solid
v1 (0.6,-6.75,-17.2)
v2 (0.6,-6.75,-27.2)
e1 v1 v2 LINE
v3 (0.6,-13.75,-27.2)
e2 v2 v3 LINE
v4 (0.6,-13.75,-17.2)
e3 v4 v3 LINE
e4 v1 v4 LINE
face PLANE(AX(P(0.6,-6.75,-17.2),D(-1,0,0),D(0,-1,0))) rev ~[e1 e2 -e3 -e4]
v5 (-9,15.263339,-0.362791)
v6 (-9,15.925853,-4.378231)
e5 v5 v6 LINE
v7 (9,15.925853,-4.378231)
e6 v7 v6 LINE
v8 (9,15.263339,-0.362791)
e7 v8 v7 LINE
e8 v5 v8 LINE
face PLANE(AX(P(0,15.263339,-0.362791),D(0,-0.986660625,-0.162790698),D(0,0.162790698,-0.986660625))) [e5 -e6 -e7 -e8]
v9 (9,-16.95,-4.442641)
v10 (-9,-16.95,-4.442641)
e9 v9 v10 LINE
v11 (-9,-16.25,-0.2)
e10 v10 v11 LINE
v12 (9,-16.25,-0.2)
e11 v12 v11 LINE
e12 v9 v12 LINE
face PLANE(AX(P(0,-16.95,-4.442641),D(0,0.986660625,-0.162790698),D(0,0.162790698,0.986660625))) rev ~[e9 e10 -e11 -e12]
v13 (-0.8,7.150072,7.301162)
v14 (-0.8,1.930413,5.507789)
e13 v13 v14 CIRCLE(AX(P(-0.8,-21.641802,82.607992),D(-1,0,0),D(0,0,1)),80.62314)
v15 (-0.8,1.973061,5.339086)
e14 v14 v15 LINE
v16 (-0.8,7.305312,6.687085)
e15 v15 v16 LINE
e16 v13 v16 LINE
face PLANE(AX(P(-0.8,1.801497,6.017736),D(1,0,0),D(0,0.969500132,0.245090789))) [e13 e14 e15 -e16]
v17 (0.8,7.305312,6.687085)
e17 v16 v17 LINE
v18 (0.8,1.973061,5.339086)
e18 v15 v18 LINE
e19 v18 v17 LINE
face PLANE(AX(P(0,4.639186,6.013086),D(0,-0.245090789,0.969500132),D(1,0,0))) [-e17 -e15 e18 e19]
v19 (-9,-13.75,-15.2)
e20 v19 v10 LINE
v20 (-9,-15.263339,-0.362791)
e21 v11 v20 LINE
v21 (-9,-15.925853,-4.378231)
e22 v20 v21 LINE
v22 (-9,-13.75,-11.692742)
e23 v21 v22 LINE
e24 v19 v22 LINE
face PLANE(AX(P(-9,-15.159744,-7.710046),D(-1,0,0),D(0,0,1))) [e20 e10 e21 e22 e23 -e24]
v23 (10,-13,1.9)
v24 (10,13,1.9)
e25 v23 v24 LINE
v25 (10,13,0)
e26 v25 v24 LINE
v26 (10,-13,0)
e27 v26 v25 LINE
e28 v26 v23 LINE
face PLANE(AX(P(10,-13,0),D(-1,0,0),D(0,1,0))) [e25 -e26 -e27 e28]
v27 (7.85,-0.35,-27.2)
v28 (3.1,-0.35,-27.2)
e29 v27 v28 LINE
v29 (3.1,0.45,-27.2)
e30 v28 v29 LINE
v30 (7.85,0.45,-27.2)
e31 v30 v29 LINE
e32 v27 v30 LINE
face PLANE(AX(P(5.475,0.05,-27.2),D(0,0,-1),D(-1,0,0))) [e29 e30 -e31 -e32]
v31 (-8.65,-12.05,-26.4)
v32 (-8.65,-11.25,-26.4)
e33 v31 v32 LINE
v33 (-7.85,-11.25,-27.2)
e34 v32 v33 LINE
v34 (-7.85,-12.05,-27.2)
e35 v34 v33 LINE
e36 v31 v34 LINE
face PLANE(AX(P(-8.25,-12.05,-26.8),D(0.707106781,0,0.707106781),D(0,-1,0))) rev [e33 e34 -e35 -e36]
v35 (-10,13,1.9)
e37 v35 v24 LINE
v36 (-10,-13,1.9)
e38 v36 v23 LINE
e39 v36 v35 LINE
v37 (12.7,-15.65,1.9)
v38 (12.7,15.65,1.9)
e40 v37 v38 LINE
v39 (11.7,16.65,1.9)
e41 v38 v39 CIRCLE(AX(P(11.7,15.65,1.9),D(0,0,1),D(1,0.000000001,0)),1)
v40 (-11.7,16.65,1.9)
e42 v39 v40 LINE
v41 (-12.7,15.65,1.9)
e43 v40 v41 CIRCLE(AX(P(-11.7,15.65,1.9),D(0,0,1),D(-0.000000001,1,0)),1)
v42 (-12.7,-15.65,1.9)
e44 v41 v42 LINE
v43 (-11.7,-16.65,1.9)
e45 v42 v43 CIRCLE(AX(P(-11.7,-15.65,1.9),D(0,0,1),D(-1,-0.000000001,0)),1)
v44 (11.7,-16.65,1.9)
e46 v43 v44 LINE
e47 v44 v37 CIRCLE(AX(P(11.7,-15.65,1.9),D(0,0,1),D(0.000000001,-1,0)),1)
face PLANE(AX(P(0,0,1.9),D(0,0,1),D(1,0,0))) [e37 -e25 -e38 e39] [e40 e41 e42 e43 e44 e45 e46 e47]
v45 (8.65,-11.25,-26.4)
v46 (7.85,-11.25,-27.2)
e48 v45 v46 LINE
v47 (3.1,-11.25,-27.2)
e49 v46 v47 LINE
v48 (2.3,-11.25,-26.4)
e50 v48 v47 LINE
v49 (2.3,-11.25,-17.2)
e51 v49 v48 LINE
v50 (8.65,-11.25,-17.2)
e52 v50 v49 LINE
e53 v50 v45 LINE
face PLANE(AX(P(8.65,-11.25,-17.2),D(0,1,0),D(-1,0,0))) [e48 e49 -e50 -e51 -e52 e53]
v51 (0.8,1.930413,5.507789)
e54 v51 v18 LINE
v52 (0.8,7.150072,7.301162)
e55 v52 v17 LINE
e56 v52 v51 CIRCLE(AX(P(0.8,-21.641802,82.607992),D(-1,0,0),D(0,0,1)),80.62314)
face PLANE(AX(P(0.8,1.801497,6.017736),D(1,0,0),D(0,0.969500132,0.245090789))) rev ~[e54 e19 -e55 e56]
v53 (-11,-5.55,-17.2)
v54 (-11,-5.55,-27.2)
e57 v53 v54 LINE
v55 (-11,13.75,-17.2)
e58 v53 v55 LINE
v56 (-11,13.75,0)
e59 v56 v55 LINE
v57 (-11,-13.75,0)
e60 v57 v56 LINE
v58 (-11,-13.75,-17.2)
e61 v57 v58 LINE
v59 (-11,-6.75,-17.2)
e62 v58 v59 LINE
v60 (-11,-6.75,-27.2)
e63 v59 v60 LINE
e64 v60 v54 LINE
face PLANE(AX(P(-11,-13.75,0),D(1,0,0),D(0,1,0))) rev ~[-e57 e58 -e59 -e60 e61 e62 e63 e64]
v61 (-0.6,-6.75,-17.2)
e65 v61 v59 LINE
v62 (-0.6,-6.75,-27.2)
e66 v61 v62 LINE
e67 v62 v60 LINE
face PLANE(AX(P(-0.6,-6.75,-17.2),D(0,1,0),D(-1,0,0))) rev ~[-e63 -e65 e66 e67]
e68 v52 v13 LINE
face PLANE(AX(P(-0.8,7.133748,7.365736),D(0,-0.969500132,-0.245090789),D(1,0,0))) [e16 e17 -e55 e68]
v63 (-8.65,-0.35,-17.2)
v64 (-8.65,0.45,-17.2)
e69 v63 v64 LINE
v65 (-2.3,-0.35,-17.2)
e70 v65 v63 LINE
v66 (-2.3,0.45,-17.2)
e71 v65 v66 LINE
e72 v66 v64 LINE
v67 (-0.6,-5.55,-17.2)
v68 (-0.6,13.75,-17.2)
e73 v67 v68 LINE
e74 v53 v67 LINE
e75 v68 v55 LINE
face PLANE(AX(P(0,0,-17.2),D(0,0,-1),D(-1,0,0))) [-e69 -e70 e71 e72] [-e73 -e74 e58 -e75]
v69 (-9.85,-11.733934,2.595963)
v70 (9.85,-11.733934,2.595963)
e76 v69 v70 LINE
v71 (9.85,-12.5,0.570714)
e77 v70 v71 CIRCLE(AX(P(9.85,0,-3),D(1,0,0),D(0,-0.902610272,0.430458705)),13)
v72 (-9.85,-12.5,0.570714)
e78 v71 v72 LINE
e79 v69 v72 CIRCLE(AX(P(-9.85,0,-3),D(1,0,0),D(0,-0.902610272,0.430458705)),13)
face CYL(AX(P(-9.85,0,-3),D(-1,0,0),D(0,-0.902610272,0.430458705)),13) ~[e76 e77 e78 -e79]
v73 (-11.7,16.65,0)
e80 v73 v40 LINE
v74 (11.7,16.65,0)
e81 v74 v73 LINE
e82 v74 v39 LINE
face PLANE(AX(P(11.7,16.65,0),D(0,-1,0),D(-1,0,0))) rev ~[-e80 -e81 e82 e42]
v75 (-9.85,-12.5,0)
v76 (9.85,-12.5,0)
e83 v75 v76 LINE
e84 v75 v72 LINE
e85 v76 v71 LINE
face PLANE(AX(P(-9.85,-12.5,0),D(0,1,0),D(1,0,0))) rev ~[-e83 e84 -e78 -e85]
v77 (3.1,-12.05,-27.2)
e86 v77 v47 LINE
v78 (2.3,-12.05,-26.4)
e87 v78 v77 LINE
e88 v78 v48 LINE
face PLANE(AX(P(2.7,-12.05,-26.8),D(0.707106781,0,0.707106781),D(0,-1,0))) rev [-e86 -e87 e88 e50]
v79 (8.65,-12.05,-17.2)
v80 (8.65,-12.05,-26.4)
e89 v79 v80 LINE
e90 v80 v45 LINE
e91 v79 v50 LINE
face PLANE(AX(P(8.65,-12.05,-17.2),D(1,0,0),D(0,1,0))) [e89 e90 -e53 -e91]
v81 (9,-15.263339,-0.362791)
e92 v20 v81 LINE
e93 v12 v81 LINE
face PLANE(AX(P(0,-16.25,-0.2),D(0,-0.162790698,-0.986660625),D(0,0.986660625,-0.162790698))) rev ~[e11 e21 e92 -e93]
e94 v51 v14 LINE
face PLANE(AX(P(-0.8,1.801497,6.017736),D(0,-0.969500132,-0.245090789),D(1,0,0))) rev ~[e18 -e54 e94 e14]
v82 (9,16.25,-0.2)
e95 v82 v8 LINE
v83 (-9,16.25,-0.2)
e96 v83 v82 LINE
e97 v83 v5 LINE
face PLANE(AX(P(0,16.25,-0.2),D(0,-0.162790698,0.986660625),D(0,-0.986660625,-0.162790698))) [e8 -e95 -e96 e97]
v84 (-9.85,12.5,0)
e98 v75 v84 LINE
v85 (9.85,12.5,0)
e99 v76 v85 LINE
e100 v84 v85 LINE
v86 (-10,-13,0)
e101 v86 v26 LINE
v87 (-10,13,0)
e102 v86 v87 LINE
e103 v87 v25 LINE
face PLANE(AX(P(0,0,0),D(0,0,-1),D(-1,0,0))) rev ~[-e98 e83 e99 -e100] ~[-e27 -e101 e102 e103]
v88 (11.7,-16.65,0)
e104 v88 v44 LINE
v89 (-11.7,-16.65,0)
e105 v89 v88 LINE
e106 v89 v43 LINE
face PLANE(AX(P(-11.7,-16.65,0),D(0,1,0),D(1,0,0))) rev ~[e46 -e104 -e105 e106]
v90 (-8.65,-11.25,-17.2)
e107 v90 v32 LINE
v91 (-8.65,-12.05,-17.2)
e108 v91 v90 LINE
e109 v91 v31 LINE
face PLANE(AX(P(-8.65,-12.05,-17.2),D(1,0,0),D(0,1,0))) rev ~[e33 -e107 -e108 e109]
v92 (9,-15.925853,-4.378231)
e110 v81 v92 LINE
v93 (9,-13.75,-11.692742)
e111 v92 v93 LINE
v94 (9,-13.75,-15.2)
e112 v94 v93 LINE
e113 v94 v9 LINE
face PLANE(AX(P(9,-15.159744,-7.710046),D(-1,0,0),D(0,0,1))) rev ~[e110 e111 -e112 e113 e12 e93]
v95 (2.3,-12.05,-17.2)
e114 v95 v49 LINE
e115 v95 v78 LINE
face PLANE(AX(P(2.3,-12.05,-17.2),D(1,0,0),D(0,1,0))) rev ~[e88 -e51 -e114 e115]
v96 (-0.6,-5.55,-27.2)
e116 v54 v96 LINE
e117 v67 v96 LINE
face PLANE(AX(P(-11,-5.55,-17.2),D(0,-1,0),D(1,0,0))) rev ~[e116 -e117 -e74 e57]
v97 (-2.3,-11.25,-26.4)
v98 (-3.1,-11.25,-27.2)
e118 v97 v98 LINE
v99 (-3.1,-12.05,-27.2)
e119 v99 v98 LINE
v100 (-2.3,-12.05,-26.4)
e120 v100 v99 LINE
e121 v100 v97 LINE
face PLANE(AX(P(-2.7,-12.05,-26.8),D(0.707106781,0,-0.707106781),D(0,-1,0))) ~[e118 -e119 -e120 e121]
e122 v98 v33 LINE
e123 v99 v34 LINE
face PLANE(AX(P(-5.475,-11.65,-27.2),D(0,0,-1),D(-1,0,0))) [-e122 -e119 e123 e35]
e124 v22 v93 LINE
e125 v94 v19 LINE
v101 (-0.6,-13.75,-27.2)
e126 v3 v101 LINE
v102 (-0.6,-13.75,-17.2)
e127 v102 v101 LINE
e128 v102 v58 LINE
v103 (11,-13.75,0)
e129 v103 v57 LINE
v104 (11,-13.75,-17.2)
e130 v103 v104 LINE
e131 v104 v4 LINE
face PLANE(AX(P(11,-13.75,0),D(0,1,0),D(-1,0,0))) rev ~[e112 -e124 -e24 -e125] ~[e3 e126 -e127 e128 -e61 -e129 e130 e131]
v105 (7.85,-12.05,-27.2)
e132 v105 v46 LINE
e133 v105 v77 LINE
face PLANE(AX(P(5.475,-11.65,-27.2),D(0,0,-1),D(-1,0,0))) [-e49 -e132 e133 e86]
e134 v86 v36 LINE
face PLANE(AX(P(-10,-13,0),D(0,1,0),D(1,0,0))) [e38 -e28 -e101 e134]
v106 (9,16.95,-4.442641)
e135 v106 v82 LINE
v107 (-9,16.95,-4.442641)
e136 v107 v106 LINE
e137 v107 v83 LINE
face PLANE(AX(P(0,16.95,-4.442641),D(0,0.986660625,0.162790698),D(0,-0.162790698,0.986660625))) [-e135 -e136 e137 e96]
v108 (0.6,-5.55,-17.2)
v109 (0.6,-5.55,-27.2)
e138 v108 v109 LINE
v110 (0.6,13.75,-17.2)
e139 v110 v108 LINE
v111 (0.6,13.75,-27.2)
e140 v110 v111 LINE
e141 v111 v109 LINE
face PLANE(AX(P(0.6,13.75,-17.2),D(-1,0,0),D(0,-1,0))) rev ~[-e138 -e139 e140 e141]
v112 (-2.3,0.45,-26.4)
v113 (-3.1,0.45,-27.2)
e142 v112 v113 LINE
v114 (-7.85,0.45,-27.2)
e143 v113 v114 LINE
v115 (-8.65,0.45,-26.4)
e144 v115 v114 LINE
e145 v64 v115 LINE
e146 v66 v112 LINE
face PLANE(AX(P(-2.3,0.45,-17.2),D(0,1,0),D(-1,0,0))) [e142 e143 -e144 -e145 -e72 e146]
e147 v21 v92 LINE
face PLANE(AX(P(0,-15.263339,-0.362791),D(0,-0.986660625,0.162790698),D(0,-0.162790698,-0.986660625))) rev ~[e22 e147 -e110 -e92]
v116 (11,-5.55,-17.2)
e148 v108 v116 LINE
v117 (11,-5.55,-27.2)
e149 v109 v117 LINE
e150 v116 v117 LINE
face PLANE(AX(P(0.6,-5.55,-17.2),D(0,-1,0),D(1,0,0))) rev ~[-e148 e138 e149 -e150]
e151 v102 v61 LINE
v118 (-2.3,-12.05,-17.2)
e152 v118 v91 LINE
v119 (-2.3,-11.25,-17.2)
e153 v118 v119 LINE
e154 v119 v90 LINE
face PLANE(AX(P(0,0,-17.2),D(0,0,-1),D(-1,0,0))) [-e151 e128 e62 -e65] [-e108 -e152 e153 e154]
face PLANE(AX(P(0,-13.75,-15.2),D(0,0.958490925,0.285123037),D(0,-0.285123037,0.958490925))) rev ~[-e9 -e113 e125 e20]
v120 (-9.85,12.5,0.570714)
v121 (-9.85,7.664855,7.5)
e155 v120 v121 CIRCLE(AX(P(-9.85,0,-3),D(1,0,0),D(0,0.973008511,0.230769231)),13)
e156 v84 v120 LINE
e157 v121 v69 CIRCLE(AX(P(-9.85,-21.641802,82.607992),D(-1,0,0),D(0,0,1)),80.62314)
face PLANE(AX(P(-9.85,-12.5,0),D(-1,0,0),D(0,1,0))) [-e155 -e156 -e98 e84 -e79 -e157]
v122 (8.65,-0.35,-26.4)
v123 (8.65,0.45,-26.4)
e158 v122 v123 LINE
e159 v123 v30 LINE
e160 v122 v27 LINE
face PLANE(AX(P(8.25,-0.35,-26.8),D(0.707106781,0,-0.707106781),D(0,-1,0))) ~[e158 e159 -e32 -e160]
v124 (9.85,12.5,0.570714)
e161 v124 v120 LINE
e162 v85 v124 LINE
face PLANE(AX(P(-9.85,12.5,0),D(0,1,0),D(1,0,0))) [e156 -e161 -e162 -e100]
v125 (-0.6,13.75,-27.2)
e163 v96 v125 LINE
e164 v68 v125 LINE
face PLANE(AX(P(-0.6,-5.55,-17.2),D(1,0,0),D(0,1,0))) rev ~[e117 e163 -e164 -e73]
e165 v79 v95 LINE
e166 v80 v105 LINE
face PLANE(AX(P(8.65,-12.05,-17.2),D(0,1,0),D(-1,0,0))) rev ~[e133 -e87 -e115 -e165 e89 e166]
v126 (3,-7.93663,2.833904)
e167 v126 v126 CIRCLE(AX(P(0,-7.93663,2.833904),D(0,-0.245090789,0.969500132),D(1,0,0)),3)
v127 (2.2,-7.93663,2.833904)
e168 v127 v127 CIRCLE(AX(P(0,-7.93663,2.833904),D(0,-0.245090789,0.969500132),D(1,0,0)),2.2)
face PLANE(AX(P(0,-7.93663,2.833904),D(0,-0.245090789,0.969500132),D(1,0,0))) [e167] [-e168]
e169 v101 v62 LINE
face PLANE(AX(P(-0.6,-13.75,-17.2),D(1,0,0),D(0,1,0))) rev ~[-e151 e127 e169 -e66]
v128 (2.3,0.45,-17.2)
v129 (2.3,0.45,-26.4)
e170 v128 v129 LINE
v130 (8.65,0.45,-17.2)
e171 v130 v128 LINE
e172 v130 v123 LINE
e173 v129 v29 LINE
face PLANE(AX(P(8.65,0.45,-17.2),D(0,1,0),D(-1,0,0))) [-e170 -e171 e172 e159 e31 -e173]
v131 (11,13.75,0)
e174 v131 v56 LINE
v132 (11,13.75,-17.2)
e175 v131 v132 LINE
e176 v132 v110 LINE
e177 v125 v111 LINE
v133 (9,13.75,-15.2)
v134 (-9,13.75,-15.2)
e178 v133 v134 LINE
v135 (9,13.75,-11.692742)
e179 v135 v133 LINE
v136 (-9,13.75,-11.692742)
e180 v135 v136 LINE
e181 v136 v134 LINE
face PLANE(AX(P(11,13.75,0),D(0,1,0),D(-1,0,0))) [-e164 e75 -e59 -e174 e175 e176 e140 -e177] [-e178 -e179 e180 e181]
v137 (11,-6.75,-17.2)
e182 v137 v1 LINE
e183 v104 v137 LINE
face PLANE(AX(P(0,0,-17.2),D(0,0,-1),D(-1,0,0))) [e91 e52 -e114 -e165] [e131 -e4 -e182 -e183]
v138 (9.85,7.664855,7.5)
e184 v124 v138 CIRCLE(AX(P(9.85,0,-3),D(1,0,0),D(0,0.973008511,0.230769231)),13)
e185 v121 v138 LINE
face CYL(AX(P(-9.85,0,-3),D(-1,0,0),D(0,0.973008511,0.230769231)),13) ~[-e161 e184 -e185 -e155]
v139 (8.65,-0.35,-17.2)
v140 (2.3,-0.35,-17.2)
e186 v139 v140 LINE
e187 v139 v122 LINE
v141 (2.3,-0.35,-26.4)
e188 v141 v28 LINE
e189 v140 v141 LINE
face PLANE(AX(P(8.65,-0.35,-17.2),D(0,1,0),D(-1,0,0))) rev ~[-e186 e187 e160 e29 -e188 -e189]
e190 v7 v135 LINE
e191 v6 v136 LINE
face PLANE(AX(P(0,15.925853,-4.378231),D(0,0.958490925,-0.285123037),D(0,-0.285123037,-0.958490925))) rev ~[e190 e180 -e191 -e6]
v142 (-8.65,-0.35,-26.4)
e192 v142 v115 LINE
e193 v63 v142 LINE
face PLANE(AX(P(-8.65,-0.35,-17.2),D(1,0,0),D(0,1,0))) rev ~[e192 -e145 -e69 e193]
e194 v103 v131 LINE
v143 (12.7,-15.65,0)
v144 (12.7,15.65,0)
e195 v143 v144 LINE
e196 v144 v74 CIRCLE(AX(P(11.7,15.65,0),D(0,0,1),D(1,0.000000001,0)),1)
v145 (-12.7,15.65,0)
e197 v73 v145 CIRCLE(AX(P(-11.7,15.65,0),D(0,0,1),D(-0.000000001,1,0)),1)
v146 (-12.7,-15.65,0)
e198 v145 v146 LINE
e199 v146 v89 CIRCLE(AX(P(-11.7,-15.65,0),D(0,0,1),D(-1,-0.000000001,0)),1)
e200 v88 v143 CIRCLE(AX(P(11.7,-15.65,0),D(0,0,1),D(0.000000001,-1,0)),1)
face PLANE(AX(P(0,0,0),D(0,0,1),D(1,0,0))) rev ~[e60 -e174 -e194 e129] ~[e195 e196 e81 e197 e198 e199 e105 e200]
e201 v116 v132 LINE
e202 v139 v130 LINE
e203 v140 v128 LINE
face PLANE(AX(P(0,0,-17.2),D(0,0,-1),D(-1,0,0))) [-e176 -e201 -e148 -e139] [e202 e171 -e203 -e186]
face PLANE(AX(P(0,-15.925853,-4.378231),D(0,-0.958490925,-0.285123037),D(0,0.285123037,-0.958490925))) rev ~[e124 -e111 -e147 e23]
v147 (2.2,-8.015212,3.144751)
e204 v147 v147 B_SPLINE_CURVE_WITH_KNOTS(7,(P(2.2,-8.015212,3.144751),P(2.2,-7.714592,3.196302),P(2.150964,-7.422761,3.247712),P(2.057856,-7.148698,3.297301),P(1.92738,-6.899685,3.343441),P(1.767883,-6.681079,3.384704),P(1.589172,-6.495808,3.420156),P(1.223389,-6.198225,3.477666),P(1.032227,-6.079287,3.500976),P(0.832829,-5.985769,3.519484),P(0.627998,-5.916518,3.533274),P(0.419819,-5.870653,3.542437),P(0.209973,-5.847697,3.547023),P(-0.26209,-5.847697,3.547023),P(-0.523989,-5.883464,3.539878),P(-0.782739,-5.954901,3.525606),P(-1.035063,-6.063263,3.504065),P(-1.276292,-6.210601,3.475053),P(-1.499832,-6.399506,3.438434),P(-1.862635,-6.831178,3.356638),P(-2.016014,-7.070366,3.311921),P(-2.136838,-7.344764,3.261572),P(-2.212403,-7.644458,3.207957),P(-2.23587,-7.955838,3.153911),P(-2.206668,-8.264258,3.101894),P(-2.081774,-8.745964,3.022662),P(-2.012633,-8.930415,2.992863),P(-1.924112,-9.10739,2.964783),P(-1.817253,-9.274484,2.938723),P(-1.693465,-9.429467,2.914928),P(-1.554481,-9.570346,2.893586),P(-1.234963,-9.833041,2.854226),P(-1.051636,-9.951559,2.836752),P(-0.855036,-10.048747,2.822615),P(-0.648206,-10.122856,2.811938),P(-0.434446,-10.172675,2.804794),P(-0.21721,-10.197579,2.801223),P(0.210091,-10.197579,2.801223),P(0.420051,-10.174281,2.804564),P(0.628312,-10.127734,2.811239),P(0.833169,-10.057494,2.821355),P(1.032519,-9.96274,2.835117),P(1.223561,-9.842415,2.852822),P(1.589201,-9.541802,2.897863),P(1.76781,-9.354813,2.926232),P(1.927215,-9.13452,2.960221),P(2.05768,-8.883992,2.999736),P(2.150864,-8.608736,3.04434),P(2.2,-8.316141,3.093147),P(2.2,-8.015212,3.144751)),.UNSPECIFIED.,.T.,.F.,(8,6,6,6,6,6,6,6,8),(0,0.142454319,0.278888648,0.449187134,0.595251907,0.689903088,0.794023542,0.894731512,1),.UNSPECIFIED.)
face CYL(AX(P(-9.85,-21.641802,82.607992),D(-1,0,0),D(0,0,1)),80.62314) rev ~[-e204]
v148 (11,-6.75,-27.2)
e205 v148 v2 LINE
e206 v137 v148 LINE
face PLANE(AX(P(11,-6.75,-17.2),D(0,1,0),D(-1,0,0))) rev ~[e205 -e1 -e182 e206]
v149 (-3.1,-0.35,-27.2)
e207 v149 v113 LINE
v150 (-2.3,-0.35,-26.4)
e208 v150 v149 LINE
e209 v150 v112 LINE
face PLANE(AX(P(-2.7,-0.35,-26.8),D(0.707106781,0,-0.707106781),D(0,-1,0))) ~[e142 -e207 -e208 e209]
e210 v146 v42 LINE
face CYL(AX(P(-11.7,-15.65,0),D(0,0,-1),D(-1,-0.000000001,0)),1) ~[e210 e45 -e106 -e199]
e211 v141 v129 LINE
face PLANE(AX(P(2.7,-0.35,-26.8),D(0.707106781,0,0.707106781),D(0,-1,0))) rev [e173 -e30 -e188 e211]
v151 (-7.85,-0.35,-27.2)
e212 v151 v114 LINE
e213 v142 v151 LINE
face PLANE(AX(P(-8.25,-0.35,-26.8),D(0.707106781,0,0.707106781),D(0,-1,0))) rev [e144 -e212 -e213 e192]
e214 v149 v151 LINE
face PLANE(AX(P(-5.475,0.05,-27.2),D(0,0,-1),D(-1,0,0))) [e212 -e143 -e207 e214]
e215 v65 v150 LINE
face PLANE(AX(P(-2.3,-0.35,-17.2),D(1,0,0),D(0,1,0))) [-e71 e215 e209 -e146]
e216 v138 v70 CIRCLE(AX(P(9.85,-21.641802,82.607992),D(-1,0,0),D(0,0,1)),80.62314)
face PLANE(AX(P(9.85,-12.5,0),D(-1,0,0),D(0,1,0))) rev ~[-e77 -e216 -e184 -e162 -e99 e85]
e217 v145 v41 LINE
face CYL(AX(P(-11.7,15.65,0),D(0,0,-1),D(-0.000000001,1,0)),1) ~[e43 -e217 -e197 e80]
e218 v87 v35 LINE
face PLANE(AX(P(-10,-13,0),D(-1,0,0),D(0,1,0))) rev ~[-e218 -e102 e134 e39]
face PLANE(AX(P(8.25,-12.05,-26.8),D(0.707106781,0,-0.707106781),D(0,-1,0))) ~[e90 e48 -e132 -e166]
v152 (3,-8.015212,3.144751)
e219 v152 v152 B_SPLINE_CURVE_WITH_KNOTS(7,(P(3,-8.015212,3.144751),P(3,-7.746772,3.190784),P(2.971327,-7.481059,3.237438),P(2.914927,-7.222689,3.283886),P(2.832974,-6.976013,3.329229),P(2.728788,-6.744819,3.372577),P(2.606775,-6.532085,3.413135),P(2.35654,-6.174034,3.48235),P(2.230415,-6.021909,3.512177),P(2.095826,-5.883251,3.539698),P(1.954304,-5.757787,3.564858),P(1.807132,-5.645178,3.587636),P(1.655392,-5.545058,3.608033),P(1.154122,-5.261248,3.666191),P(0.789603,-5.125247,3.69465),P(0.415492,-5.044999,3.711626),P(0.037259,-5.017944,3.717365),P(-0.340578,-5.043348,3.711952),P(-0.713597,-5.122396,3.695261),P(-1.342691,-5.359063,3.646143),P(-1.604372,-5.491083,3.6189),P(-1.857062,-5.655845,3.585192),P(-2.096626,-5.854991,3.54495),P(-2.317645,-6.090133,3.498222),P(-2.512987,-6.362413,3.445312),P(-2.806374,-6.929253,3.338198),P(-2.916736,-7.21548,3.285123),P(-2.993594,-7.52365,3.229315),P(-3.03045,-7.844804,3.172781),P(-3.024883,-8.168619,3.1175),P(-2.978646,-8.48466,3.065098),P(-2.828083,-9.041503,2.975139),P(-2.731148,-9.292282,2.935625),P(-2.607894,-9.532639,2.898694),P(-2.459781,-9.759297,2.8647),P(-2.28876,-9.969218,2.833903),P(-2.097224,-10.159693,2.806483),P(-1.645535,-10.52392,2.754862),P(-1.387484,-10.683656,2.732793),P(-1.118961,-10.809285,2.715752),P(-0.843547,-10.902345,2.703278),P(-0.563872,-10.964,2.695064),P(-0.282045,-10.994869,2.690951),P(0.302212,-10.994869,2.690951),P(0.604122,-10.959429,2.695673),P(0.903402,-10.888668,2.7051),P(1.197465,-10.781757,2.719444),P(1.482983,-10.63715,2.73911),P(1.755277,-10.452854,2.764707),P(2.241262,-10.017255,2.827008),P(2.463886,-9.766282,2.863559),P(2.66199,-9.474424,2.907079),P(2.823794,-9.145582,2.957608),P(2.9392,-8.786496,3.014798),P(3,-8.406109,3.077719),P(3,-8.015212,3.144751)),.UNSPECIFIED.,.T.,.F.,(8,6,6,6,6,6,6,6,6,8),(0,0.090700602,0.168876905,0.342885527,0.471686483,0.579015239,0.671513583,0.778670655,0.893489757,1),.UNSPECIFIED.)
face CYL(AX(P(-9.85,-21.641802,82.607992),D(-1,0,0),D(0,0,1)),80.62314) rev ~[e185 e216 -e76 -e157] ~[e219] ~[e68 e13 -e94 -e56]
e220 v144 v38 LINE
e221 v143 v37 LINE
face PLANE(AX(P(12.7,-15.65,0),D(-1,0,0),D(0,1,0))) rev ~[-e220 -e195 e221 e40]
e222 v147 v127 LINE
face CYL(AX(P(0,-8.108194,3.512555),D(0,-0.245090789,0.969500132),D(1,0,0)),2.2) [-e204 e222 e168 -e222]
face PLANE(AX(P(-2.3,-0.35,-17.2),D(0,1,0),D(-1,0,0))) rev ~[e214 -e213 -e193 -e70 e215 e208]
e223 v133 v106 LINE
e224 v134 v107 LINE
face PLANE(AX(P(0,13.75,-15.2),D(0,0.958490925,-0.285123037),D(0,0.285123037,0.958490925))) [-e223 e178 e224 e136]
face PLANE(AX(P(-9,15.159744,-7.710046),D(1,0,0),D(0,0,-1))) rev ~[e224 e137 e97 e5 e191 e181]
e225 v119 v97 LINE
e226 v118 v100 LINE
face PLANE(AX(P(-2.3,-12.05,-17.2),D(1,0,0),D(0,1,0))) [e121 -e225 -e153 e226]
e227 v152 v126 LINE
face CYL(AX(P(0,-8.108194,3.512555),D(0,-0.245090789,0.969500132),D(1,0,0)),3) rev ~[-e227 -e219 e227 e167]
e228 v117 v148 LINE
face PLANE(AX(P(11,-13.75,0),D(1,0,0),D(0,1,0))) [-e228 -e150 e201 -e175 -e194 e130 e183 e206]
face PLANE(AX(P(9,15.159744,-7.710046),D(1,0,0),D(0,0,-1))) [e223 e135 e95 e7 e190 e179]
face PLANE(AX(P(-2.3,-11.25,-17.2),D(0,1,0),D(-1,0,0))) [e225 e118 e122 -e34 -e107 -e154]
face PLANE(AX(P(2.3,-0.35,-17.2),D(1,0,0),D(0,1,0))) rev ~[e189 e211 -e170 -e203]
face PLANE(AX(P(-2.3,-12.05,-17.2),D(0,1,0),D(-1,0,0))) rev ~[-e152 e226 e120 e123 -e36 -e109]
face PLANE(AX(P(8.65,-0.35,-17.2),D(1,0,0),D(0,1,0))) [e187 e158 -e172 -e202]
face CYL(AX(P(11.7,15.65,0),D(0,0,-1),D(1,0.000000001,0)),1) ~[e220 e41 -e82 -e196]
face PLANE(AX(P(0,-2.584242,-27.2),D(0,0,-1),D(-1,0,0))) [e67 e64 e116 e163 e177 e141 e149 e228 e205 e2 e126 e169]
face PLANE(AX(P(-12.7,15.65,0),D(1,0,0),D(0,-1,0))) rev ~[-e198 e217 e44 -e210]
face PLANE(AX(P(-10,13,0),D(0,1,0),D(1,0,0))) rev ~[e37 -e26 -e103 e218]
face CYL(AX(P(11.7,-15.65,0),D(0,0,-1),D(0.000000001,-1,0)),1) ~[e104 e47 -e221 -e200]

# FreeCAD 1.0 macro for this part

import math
import FreeCAD as App
import Part
import Sketcher
from FreeCAD import Vector


def edges_at(feature, points):
    """Names of the edges that pass closest to the given points."""
    edges = feature.Shape.Edges
    near = lambda p: min(range(len(edges)), key=lambda i: edges[i].distToShape(Part.Vertex(*p))[0])
    return sorted({f"Edge{near(p) + 1}" for p in points})

doc = App.newDocument("Part")
params = doc.addObject("Spreadsheet::Sheet", "Params")
for row, (alias, value) in enumerate([
    ("sketch1_radius", "1 mm"),
    ("sketch1_width", "20 mm"),
    ("sketch1_height", "26 mm"),
    ("sketch1_width2", "23.4 mm"),
    ("sketch1_height2", "31.3 mm"),
    ("pad1_length", "1.9 mm"),
    ("sketch2_width", "22 mm"),
    ("sketch2_height", "27.5 mm"),
    ("pad2_length", "17.2 mm"),
    ("sketch3_height", "25 mm"),
    ("sketch3_width", "19.7 mm"),
    ("pad3_length", "7.6 mm"),
    ("sketch4_radius", "13 mm"),
    ("sketch4_height", "10.2 mm"),
    ("pocket1_length", "19.7 mm"),
    ("sketch5_diameter", "6 mm"),
    ("sketch5_diameter2", "4.4 mm"),
    ("sketch5_width", "1.6 mm"),
    ("sketch5_height", "5.5 mm"),
    ("pocket2_length", "0.7 mm"),
    ("sketch7_height", "7 mm"),
    ("sketch7_width", "1.2 mm"),
    ("sketch7_width2", "10.4 mm"),
    ("sketch7_height2", "19.3 mm"),
    ("sketch7_height3", "0.8 mm"),
    ("pad4_length", "10 mm"),
    ("chamfer_size", "0.8 mm"),
    ("sketch8_length", "1 mm"),
    ("sketch8_length2", "4.3 mm"),
    ("pad5_length", "9 mm"),
    ("pad5_length2", "9 mm"),
], start=1):
    params.set(f"A{row}", alias)
    params.set(f"B{row}", "=" + value)
    params.setAlias(f"B{row}", alias)

body = doc.addObject("PartDesign::Body", "Body")

sketch1 = body.newObject("Sketcher::SketchObject", "Sketch")
sketch1.AttachmentSupport = (doc.getObject("XY_Plane"), [""])
sketch1.MapMode = "FlatFace"
sketch1.addGeometry(Part.LineSegment(Vector(-11.7, -16.6, 0), Vector(11.7, -16.6, 0)), False)
sketch1.addGeometry(Part.ArcOfCircle(Part.Circle(Vector(11.7, -15.6, 0), Vector(0, 0, 1), 1), math.radians(-90), math.radians(0)), False)
sketch1.addGeometry(Part.LineSegment(Vector(12.7, -15.7, 0), Vector(12.7, 15.7, 0)), False)
sketch1.addGeometry(Part.ArcOfCircle(Part.Circle(Vector(11.7, 15.6, 0), Vector(0, 0, 1), 1), math.radians(0), math.radians(90)), False)
sketch1.addGeometry(Part.LineSegment(Vector(11.7, 16.6, 0), Vector(-11.7, 16.6, 0)), False)
sketch1.addGeometry(Part.ArcOfCircle(Part.Circle(Vector(-11.7, 15.6, 0), Vector(0, 0, 1), 1), math.radians(90), math.radians(180)), False)
sketch1.addGeometry(Part.LineSegment(Vector(-12.7, 15.7, 0), Vector(-12.7, -15.7, 0)), False)
sketch1.addGeometry(Part.ArcOfCircle(Part.Circle(Vector(-11.7, -15.6, 0), Vector(0, 0, 1), 1), math.radians(-180), math.radians(-90)), False)
sketch1.addGeometry(Part.LineSegment(Vector(10, -13, 0), Vector(-10, -13, 0)), False)
sketch1.addGeometry(Part.LineSegment(Vector(-10, -13, 0), Vector(-10, 13, 0)), False)
sketch1.addGeometry(Part.LineSegment(Vector(-10, 13, 0), Vector(10, 13, 0)), False)
sketch1.addGeometry(Part.LineSegment(Vector(10, 13, 0), Vector(10, -13, 0)), False)
sketch1.addConstraint(Sketcher.Constraint("Tangent", 0, 2, 1, 1))
sketch1.addConstraint(Sketcher.Constraint("Tangent", 1, 2, 2, 1))
sketch1.addConstraint(Sketcher.Constraint("Tangent", 2, 2, 3, 1))
sketch1.addConstraint(Sketcher.Constraint("Tangent", 3, 2, 4, 1))
sketch1.addConstraint(Sketcher.Constraint("Tangent", 4, 2, 5, 1))
sketch1.addConstraint(Sketcher.Constraint("Tangent", 5, 2, 6, 1))
sketch1.addConstraint(Sketcher.Constraint("Tangent", 6, 2, 7, 1))
sketch1.addConstraint(Sketcher.Constraint("Tangent", 7, 2, 0, 1))
sketch1.addConstraint(Sketcher.Constraint("Coincident", 8, 2, 9, 1))
sketch1.addConstraint(Sketcher.Constraint("Coincident", 9, 2, 10, 1))
sketch1.addConstraint(Sketcher.Constraint("Coincident", 10, 2, 11, 1))
sketch1.addConstraint(Sketcher.Constraint("Coincident", 11, 2, 8, 1))
sketch1.addConstraint(Sketcher.Constraint("Horizontal", 0))
sketch1.addConstraint(Sketcher.Constraint("Vertical", 2))
sketch1.addConstraint(Sketcher.Constraint("Horizontal", 4))
sketch1.addConstraint(Sketcher.Constraint("Vertical", 6))
sketch1.addConstraint(Sketcher.Constraint("Horizontal", 8))
sketch1.addConstraint(Sketcher.Constraint("Vertical", 9))
sketch1.addConstraint(Sketcher.Constraint("Horizontal", 10))
sketch1.addConstraint(Sketcher.Constraint("Vertical", 11))
sketch1.addConstraint(Sketcher.Constraint("Equal", 1, 3))
sketch1.addConstraint(Sketcher.Constraint("Equal", 3, 5))
sketch1.addConstraint(Sketcher.Constraint("Equal", 5, 7))
sketch1.addConstraint(Sketcher.Constraint("Symmetric", 1, 3, 5, 3, -1, 1))
sketch1.addConstraint(Sketcher.Constraint("Symmetric", 8, 2, 10, 2, -1, 1))
sketch1.addConstraint(Sketcher.Constraint("Radius", 1, 1.0))
sketch1.addConstraint(Sketcher.Constraint("DistanceX", 8, 2, 8, 1, 20.0))
sketch1.addConstraint(Sketcher.Constraint("DistanceY", 9, 1, 9, 2, 26.0))
sketch1.addConstraint(Sketcher.Constraint("DistanceX", 0, 1, 0, 2, 23.4))
sketch1.addConstraint(Sketcher.Constraint("DistanceY", 2, 1, 2, 2, 31.3))
sketch1.setExpression("Constraints[25]", "Params.sketch1_radius")
sketch1.setExpression("Constraints[26]", "Params.sketch1_width")
sketch1.setExpression("Constraints[27]", "Params.sketch1_height")
sketch1.setExpression("Constraints[28]", "Params.sketch1_width2")
sketch1.setExpression("Constraints[29]", "Params.sketch1_height2")
pad1 = body.newObject("PartDesign::Pad", "Pad")
pad1.Profile = sketch1
pad1.setExpression("Length", "Params.pad1_length")

sketch2 = body.newObject("Sketcher::SketchObject", "Sketch001")
sketch2.AttachmentSupport = (doc.getObject("XY_Plane"), [""])
sketch2.MapMode = "FlatFace"
sketch2.addGeometry(Part.LineSegment(Vector(11, 14, 0), Vector(11, -14, 0)), False)
sketch2.addGeometry(Part.LineSegment(Vector(11, -14, 0), Vector(-11, -14, 0)), False)
sketch2.addGeometry(Part.LineSegment(Vector(-11, -14, 0), Vector(-11, 14, 0)), False)
sketch2.addGeometry(Part.LineSegment(Vector(-11, 14, 0), Vector(11, 14, 0)), False)
sketch2.addConstraint(Sketcher.Constraint("Coincident", 0, 2, 1, 1))
sketch2.addConstraint(Sketcher.Constraint("Coincident", 1, 2, 2, 1))
sketch2.addConstraint(Sketcher.Constraint("Coincident", 2, 2, 3, 1))
sketch2.addConstraint(Sketcher.Constraint("Coincident", 3, 2, 0, 1))
sketch2.addConstraint(Sketcher.Constraint("Vertical", 0))
sketch2.addConstraint(Sketcher.Constraint("Horizontal", 1))
sketch2.addConstraint(Sketcher.Constraint("Vertical", 2))
sketch2.addConstraint(Sketcher.Constraint("Horizontal", 3))
sketch2.addConstraint(Sketcher.Constraint("Symmetric", 0, 2, 2, 2, -1, 1))
sketch2.addConstraint(Sketcher.Constraint("DistanceX", 1, 2, 1, 1, 22.0))
sketch2.addConstraint(Sketcher.Constraint("DistanceY", 0, 2, 0, 1, 27.5))
sketch2.setExpression("Constraints[9]", "Params.sketch2_width")
sketch2.setExpression("Constraints[10]", "Params.sketch2_height")
pad2 = body.newObject("PartDesign::Pad", "Pad001")
pad2.Profile = sketch2
pad2.setExpression("Length", "Params.pad2_length")
pad2.Reversed = True

sketch3 = body.newObject("Sketcher::SketchObject", "Sketch002")
sketch3.AttachmentSupport = (doc.getObject("XY_Plane"), [""])
sketch3.MapMode = "FlatFace"
sketch3.addGeometry(Part.LineSegment(Vector(-10, 12, 0), Vector(-10, -12, 0)), False)
sketch3.addGeometry(Part.LineSegment(Vector(-10, -12, 0), Vector(10, -12, 0)), False)
sketch3.addGeometry(Part.LineSegment(Vector(10, -12, 0), Vector(10, 12, 0)), False)
sketch3.addGeometry(Part.LineSegment(Vector(10, 12, 0), Vector(-10, 12, 0)), False)
sketch3.addConstraint(Sketcher.Constraint("Coincident", 0, 2, 1, 1))
sketch3.addConstraint(Sketcher.Constraint("Coincident", 1, 2, 2, 1))
sketch3.addConstraint(Sketcher.Constraint("Coincident", 2, 2, 3, 1))
sketch3.addConstraint(Sketcher.Constraint("Coincident", 3, 2, 0, 1))
sketch3.addConstraint(Sketcher.Constraint("Vertical", 0))
sketch3.addConstraint(Sketcher.Constraint("Horizontal", 1))
sketch3.addConstraint(Sketcher.Constraint("Vertical", 2))
sketch3.addConstraint(Sketcher.Constraint("Horizontal", 3))
sketch3.addConstraint(Sketcher.Constraint("Symmetric", 0, 2, 2, 2, -1, 1))
sketch3.addConstraint(Sketcher.Constraint("DistanceY", 0, 2, 0, 1, 25.0))
sketch3.addConstraint(Sketcher.Constraint("DistanceX", 1, 1, 1, 2, 19.7))
sketch3.setExpression("Constraints[9]", "Params.sketch3_height")
sketch3.setExpression("Constraints[10]", "Params.sketch3_width")
pad3 = body.newObject("PartDesign::Pad", "Pad002")
pad3.Profile = sketch3
pad3.setExpression("Length", "Params.pad3_length")

sketch4 = body.newObject("Sketcher::SketchObject", "Sketch003")
sketch4.AttachmentSupport = (doc.getObject("YZ_Plane"), [""])
sketch4.MapMode = "FlatFace"
sketch4.AttachmentOffset = App.Placement(Vector(0, 0, -9.85), App.Rotation())
sketch4.addGeometry(Part.LineSegment(Vector(-12.6, 0, 0), Vector(-12.6, 10.2, 0)), False)
sketch4.addGeometry(Part.LineSegment(Vector(-12.6, 10.2, 0), Vector(12.6, 10.2, 0)), False)
sketch4.addGeometry(Part.LineSegment(Vector(12.6, 10.2, 0), Vector(12.6, 0, 0)), False)
sketch4.addGeometry(Part.ArcOfCircle(Part.Circle(Vector(0, -3, 0), Vector(0, 0, 1), 13), math.radians(13), math.radians(54)), False)
sketch4.addGeometry(Part.LineSegment(Vector(7.7, 7.5, 0), Vector(-11.7, 2.6, 0)), False)
sketch4.addGeometry(Part.ArcOfCircle(Part.Circle(Vector(0, -3, 0), Vector(0, 0, 1), 13), math.radians(154.5), math.radians(166.66)), False)
sketch4.addConstraint(Sketcher.Constraint("Coincident", 0, 2, 1, 1))
sketch4.addConstraint(Sketcher.Constraint("Coincident", 1, 2, 2, 1))
sketch4.addConstraint(Sketcher.Constraint("Coincident", 2, 2, 3, 1))
sketch4.addConstraint(Sketcher.Constraint("Coincident", 3, 2, 4, 1))
sketch4.addConstraint(Sketcher.Constraint("Coincident", 4, 2, 5, 1))
sketch4.addConstraint(Sketcher.Constraint("Coincident", 5, 2, 0, 1))
sketch4.addConstraint(Sketcher.Constraint("Vertical", 0))
sketch4.addConstraint(Sketcher.Constraint("Horizontal", 1))
sketch4.addConstraint(Sketcher.Constraint("Vertical", 2))
sketch4.addConstraint(Sketcher.Constraint("Coincident", 5, 3, 3, 3))
sketch4.addConstraint(Sketcher.Constraint("Equal", 3, 5))
sketch4.addConstraint(Sketcher.Constraint("Symmetric", 2, 2, 5, 2, -1, 1))
sketch4.addConstraint(Sketcher.Constraint("PointOnObject", 3, 3, -2))
sketch4.addConstraint(Sketcher.Constraint("Radius", 3, 13.0))
sketch4.addConstraint(Sketcher.Constraint("DistanceY", 0, 1, 0, 2, 10.2))
sketch4.addConstraint(Sketcher.Constraint("DistanceY", 3, 3, -1, 1, 3.0))
sketch4.addConstraint(Sketcher.Constraint("DistanceY", -1, 1, 3, 2, 7.5))
sketch4.addConstraint(Sketcher.Constraint("DistanceX", 4, 2, 3, 2, 19.398788))
sketch4.setExpression("Constraints[13]", "Params.sketch4_radius")
sketch4.setExpression("Constraints[14]", "Params.sketch4_height")
pocket1 = body.newObject("PartDesign::Pocket", "Pocket")
pocket1.Profile = sketch4
pocket1.setExpression("Length", "Params.pocket1_length")
pocket1.Reversed = True

sketch5 = body.newObject("Sketcher::SketchObject", "Sketch004")
sketch5.Placement = App.Placement(Vector(0, -1.321693, 5.22819), App.Rotation(Vector(1, 0, 0), Vector(0, 0.969500132, 0.245090789), Vector(0, -0.245090789, 0.969500132), "ZXY"))
sketch5.addGeometry(Part.Circle(Vector(0, -7, 0), Vector(0, 0, 1), 3), False)
sketch5.addGeometry(Part.Circle(Vector(0, -7, 0), Vector(0, 0, 1), 2.2), False)
sketch5.addGeometry(Part.LineSegment(Vector(-0.8, 8.7, 0), Vector(-0.8, 3.2, 0)), False)
sketch5.addGeometry(Part.LineSegment(Vector(-0.8, 3.2, 0), Vector(0.8, 3.2, 0)), False)
sketch5.addGeometry(Part.LineSegment(Vector(0.8, 3.2, 0), Vector(0.8, 8.7, 0)), False)
sketch5.addGeometry(Part.LineSegment(Vector(0.8, 8.7, 0), Vector(-0.8, 8.7, 0)), False)
sketch5.addConstraint(Sketcher.Constraint("Coincident", 2, 2, 3, 1))
sketch5.addConstraint(Sketcher.Constraint("Coincident", 3, 2, 4, 1))
sketch5.addConstraint(Sketcher.Constraint("Coincident", 4, 2, 5, 1))
sketch5.addConstraint(Sketcher.Constraint("Coincident", 5, 2, 2, 1))
sketch5.addConstraint(Sketcher.Constraint("Vertical", 2))
sketch5.addConstraint(Sketcher.Constraint("Horizontal", 3))
sketch5.addConstraint(Sketcher.Constraint("Vertical", 4))
sketch5.addConstraint(Sketcher.Constraint("Horizontal", 5))
sketch5.addConstraint(Sketcher.Constraint("Coincident", 1, 3, 0, 3))
sketch5.addConstraint(Sketcher.Constraint("PointOnObject", 0, 3, -2))
sketch5.addConstraint(Sketcher.Constraint("Diameter", 0, 6.0))
sketch5.addConstraint(Sketcher.Constraint("Diameter", 1, 4.4))
sketch5.addConstraint(Sketcher.Constraint("DistanceX", 3, 1, 3, 2, 1.6))
sketch5.addConstraint(Sketcher.Constraint("DistanceY", 2, 2, 2, 1, 5.5))
sketch5.addConstraint(Sketcher.Constraint("DistanceY", 0, 3, -1, 1, 7.0))
sketch5.addConstraint(Sketcher.Constraint("DistanceX", 2, 2, -1, 1, 0.8))
sketch5.addConstraint(Sketcher.Constraint("DistanceY", -1, 1, 2, 2, 3.221444))
sketch5.setExpression("Constraints[10]", "Params.sketch5_diameter")
sketch5.setExpression("Constraints[11]", "Params.sketch5_diameter2")
sketch5.setExpression("Constraints[12]", "Params.sketch5_width")
sketch5.setExpression("Constraints[13]", "Params.sketch5_height")
pocket2 = body.newObject("PartDesign::Pocket", "Pocket001")
pocket2.Profile = sketch5
pocket2.setExpression("Length", "Params.pocket2_length")

sketch6 = body.newObject("Sketcher::SketchObject", "Sketch005")
sketch6.AttachmentSupport = (doc.getObject("YZ_Plane"), [""])
sketch6.MapMode = "FlatFace"
sketch6.AttachmentOffset = App.Placement(Vector(0, 0, -9.85), App.Rotation())
sketch6.addGeometry(Part.Circle(Vector(-22, 83, 0), Vector(0, 0, 1), 81), False)
sketch6.addConstraint(Sketcher.Constraint("Diameter", 0, 161.246279))
sketch6.addConstraint(Sketcher.Constraint("DistanceX", 0, 3, -1, 1, 21.641802))
sketch6.addConstraint(Sketcher.Constraint("DistanceY", -1, 1, 0, 3, 82.607992))
pocket3 = body.newObject("PartDesign::Pocket", "Pocket002")
pocket3.Profile = sketch6
pocket3.Type = "ThroughAll"
pocket3.Reversed = True

sketch7 = body.newObject("Sketcher::SketchObject", "Sketch006")
sketch7.AttachmentSupport = (doc.getObject("XY_Plane"), [""])
sketch7.MapMode = "FlatFace"
sketch7.AttachmentOffset = App.Placement(Vector(0, 0, -17.2), App.Rotation())
sketch7.addGeometry(Part.LineSegment(Vector(0.6, -13.8, 0), Vector(-0.6, -13.8, 0)), False)
sketch7.addGeometry(Part.LineSegment(Vector(-0.6, -13.8, 0), Vector(-0.6, -6.8, 0)), False)
sketch7.addGeometry(Part.LineSegment(Vector(-0.6, -6.8, 0), Vector(-11, -6.8, 0)), False)
sketch7.addGeometry(Part.LineSegment(Vector(-11, -6.8, 0), Vector(-11, -5.5, 0)), False)
sketch7.addGeometry(Part.LineSegment(Vector(-11, -5.5, 0), Vector(-0.6, -5.5, 0)), False)
sketch7.addGeometry(Part.LineSegment(Vector(-0.6, -5.5, 0), Vector(-0.6, 13.8, 0)), False)
sketch7.addGeometry(Part.LineSegment(Vector(-0.6, 13.8, 0), Vector(0.6, 13.8, 0)), False)
sketch7.addGeometry(Part.LineSegment(Vector(0.6, 13.8, 0), Vector(0.6, -5.5, 0)), False)
sketch7.addGeometry(Part.LineSegment(Vector(0.6, -5.5, 0), Vector(11, -5.5, 0)), False)
sketch7.addGeometry(Part.LineSegment(Vector(11, -5.5, 0), Vector(11, -6.8, 0)), False)
sketch7.addGeometry(Part.LineSegment(Vector(11, -6.8, 0), Vector(0.6, -6.8, 0)), False)
sketch7.addGeometry(Part.LineSegment(Vector(0.6, -6.8, 0), Vector(0.6, -13.8, 0)), False)
sketch7.addGeometry(Part.LineSegment(Vector(8.7, 0.5, 0), Vector(8.7, -0.3, 0)), False)
sketch7.addGeometry(Part.LineSegment(Vector(8.7, -0.3, 0), Vector(2.3, -0.3, 0)), False)
sketch7.addGeometry(Part.LineSegment(Vector(2.3, -0.3, 0), Vector(2.3, 0.5, 0)), False)
sketch7.addGeometry(Part.LineSegment(Vector(2.3, 0.5, 0), Vector(8.7, 0.5, 0)), False)
sketch7.addGeometry(Part.LineSegment(Vector(-2.3, 0.5, 0), Vector(-2.3, -0.3, 0)), False)
sketch7.addGeometry(Part.LineSegment(Vector(-2.3, -0.3, 0), Vector(-8.7, -0.3, 0)), False)
sketch7.addGeometry(Part.LineSegment(Vector(-8.7, -0.3, 0), Vector(-8.7, 0.5, 0)), False)
sketch7.addGeometry(Part.LineSegment(Vector(-8.7, 0.5, 0), Vector(-2.3, 0.5, 0)), False)
sketch7.addGeometry(Part.LineSegment(Vector(8.7, -11.2, 0), Vector(8.7, -12.1, 0)), False)
sketch7.addGeometry(Part.LineSegment(Vector(8.7, -12.1, 0), Vector(2.3, -12.1, 0)), False)
sketch7.addGeometry(Part.LineSegment(Vector(2.3, -12.1, 0), Vector(2.3, -11.2, 0)), False)
sketch7.addGeometry(Part.LineSegment(Vector(2.3, -11.2, 0), Vector(8.7, -11.2, 0)), False)
sketch7.addGeometry(Part.LineSegment(Vector(-2.3, -11.2, 0), Vector(-2.3, -12.1, 0)), False)
sketch7.addGeometry(Part.LineSegment(Vector(-2.3, -12.1, 0), Vector(-8.7, -12.1, 0)), False)
sketch7.addGeometry(Part.LineSegment(Vector(-8.7, -12.1, 0), Vector(-8.7, -11.2, 0)), False)
sketch7.addGeometry(Part.LineSegment(Vector(-8.7, -11.2, 0), Vector(-2.3, -11.2, 0)), False)
sketch7.addConstraint(Sketcher.Constraint("Coincident", 0, 2, 1, 1))
sketch7.addConstraint(Sketcher.Constraint("Coincident", 1, 2, 2, 1))
sketch7.addConstraint(Sketcher.Constraint("Coincident", 2, 2, 3, 1))
sketch7.addConstraint(Sketcher.Constraint("Coincident", 3, 2, 4, 1))
sketch7.addConstraint(Sketcher.Constraint("Coincident", 4, 2, 5, 1))
sketch7.addConstraint(Sketcher.Constraint("Coincident", 5, 2, 6, 1))
sketch7.addConstraint(Sketcher.Constraint("Coincident", 6, 2, 7, 1))
sketch7.addConstraint(Sketcher.Constraint("Coincident", 7, 2, 8, 1))
sketch7.addConstraint(Sketcher.Constraint("Coincident", 8, 2, 9, 1))
sketch7.addConstraint(Sketcher.Constraint("Coincident", 9, 2, 10, 1))
sketch7.addConstraint(Sketcher.Constraint("Coincident", 10, 2, 11, 1))
sketch7.addConstraint(Sketcher.Constraint("Coincident", 11, 2, 0, 1))
sketch7.addConstraint(Sketcher.Constraint("Coincident", 12, 2, 13, 1))
sketch7.addConstraint(Sketcher.Constraint("Coincident", 13, 2, 14, 1))
sketch7.addConstraint(Sketcher.Constraint("Coincident", 14, 2, 15, 1))
sketch7.addConstraint(Sketcher.Constraint("Coincident", 15, 2, 12, 1))
sketch7.addConstraint(Sketcher.Constraint("Coincident", 16, 2, 17, 1))
sketch7.addConstraint(Sketcher.Constraint("Coincident", 17, 2, 18, 1))
sketch7.addConstraint(Sketcher.Constraint("Coincident", 18, 2, 19, 1))
sketch7.addConstraint(Sketcher.Constraint("Coincident", 19, 2, 16, 1))
sketch7.addConstraint(Sketcher.Constraint("Coincident", 20, 2, 21, 1))
sketch7.addConstraint(Sketcher.Constraint("Coincident", 21, 2, 22, 1))
sketch7.addConstraint(Sketcher.Constraint("Coincident", 22, 2, 23, 1))
sketch7.addConstraint(Sketcher.Constraint("Coincident", 23, 2, 20, 1))
sketch7.addConstraint(Sketcher.Constraint("Coincident", 24, 2, 25, 1))
sketch7.addConstraint(Sketcher.Constraint("Coincident", 25, 2, 26, 1))
sketch7.addConstraint(Sketcher.Constraint("Coincident", 26, 2, 27, 1))
sketch7.addConstraint(Sketcher.Constraint("Coincident", 27, 2, 24, 1))
sketch7.addConstraint(Sketcher.Constraint("Horizontal", 0))
sketch7.addConstraint(Sketcher.Constraint("Vertical", 1))
sketch7.addConstraint(Sketcher.Constraint("Horizontal", 2))
sketch7.addConstraint(Sketcher.Constraint("Vertical", 3))
sketch7.addConstraint(Sketcher.Constraint("Horizontal", 4))
sketch7.addConstraint(Sketcher.Constraint("Vertical", 5))
sketch7.addConstraint(Sketcher.Constraint("Horizontal", 6))
sketch7.addConstraint(Sketcher.Constraint("Vertical", 7))
sketch7.addConstraint(Sketcher.Constraint("Horizontal", 8))
sketch7.addConstraint(Sketcher.Constraint("Vertical", 9))
sketch7.addConstraint(Sketcher.Constraint("Horizontal", 10))
sketch7.addConstraint(Sketcher.Constraint("Vertical", 11))
sketch7.addConstraint(Sketcher.Constraint("Vertical", 12))
sketch7.addConstraint(Sketcher.Constraint("Horizontal", 13))
sketch7.addConstraint(Sketcher.Constraint("Vertical", 14))
sketch7.addConstraint(Sketcher.Constraint("Horizontal", 15))
sketch7.addConstraint(Sketcher.Constraint("Vertical", 16))
sketch7.addConstraint(Sketcher.Constraint("Horizontal", 17))
sketch7.addConstraint(Sketcher.Constraint("Vertical", 18))
sketch7.addConstraint(Sketcher.Constraint("Horizontal", 19))
sketch7.addConstraint(Sketcher.Constraint("Vertical", 20))
sketch7.addConstraint(Sketcher.Constraint("Horizontal", 21))
sketch7.addConstraint(Sketcher.Constraint("Vertical", 22))
sketch7.addConstraint(Sketcher.Constraint("Horizontal", 23))
sketch7.addConstraint(Sketcher.Constraint("Vertical", 24))
sketch7.addConstraint(Sketcher.Constraint("Horizontal", 25))
sketch7.addConstraint(Sketcher.Constraint("Vertical", 26))
sketch7.addConstraint(Sketcher.Constraint("Horizontal", 27))
sketch7.addConstraint(Sketcher.Constraint("Symmetric", 0, 2, 6, 2, -1, 1))
sketch7.addConstraint(Sketcher.Constraint("Symmetric", 4, 2, 7, 2, -2))
sketch7.addConstraint(Sketcher.Constraint("Symmetric", 2, 2, 9, 2, -2))
sketch7.addConstraint(Sketcher.Constraint("Symmetric", 13, 2, 16, 2, -2))
sketch7.addConstraint(Sketcher.Constraint("Symmetric", 15, 2, 18, 2, -2))
sketch7.addConstraint(Sketcher.Constraint("Symmetric", 21, 2, 24, 2, -2))
sketch7.addConstraint(Sketcher.Constraint("Symmetric", 23, 2, 26, 2, -2))
sketch7.addConstraint(Sketcher.Constraint("Vertical", 7, 2, 10, 2))
sketch7.addConstraint(Sketcher.Constraint("Vertical", 15, 2, 20, 2))
sketch7.addConstraint(Sketcher.Constraint("Vertical", 14, 2, 21, 2))
sketch7.addConstraint(Sketcher.Constraint("Equal", 6, 3))
sketch7.addConstraint(Sketcher.Constraint("Equal", 18, 20))
sketch7.addConstraint(Sketcher.Constraint("DistanceY", 1, 1, 1, 2, 7.0))
sketch7.addConstraint(Sketcher.Constraint("DistanceX", 0, 2, 0, 1, 1.2))
sketch7.addConstraint(Sketcher.Constraint("DistanceX", 2, 2, 2, 1, 10.4))
sketch7.addConstraint(Sketcher.Constraint("DistanceY", 5, 1, 5, 2, 19.3))
sketch7.addConstraint(Sketcher.Constraint("DistanceY", 12, 2, 12, 1, 0.8))
sketch7.addConstraint(Sketcher.Constraint("DistanceY", 7, 2, 14, 2, 6.0))
sketch7.addConstraint(Sketcher.Constraint("DistanceX", 13, 2, 13, 1, 6.35))
sketch7.addConstraint(Sketcher.Constraint("DistanceX", -1, 1, 13, 2, 2.3))
sketch7.addConstraint(Sketcher.Constraint("DistanceY", 20, 2, 9, 2, 5.3))
sketch7.setExpression("Constraints[68]", "Params.sketch7_height")
sketch7.setExpression("Constraints[69]", "Params.sketch7_width")
sketch7.setExpression("Constraints[70]", "Params.sketch7_width2")
sketch7.setExpression("Constraints[71]", "Params.sketch7_height2")
sketch7.setExpression("Constraints[72]", "Params.sketch7_height3")
pad4 = body.newObject("PartDesign::Pad", "Pad003")
pad4.Profile = sketch7
pad4.setExpression("Length", "Params.pad4_length")
pad4.Reversed = True
doc.recompute()

chamfer = body.newObject("PartDesign::Chamfer", "Chamfer")
chamfer.Base = (pad4, edges_at(pad4, [
    (8.65, 0.05, -27.2),
    (2.3, 0.05, -27.2),
    (-2.3, 0.05, -27.2),
    (-8.65, 0.05, -27.2),
    (8.65, -11.65, -27.2),
    (2.3, -11.65, -27.2),
    (-2.3, -11.65, -27.2),
    (-8.65, -11.65, -27.2),
]))
chamfer.setExpression("Size", "Params.chamfer_size")

sketch8 = body.newObject("Sketcher::SketchObject", "Sketch007")
sketch8.AttachmentSupport = (doc.getObject("YZ_Plane"), [""])
sketch8.MapMode = "FlatFace"
sketch8.addGeometry(Part.LineSegment(Vector(13.8, -15.2, 0), Vector(16.9, -4.4, 0)), False)
sketch8.addGeometry(Part.LineSegment(Vector(16.9, -4.4, 0), Vector(16.2, -0.2, 0)), False)
sketch8.addGeometry(Part.LineSegment(Vector(16.2, -0.2, 0), Vector(15.3, -0.4, 0)), False)
sketch8.addGeometry(Part.LineSegment(Vector(15.3, -0.4, 0), Vector(15.9, -4.4, 0)), False)
sketch8.addGeometry(Part.LineSegment(Vector(15.9, -4.4, 0), Vector(12.8, -14.9, 0)), False)
sketch8.addGeometry(Part.LineSegment(Vector(12.8, -14.9, 0), Vector(13.8, -15.2, 0)), False)
sketch8.addGeometry(Part.LineSegment(Vector(-16.9, -4.4, 0), Vector(-13.8, -15.2, 0)), False)
sketch8.addGeometry(Part.LineSegment(Vector(-13.8, -15.2, 0), Vector(-12.8, -14.9, 0)), False)
sketch8.addGeometry(Part.LineSegment(Vector(-12.8, -14.9, 0), Vector(-15.9, -4.4, 0)), False)
sketch8.addGeometry(Part.LineSegment(Vector(-15.9, -4.4, 0), Vector(-15.3, -0.4, 0)), False)
sketch8.addGeometry(Part.LineSegment(Vector(-15.3, -0.4, 0), Vector(-16.2, -0.2, 0)), False)
sketch8.addGeometry(Part.LineSegment(Vector(-16.2, -0.2, 0), Vector(-16.9, -4.4, 0)), False)
sketch8.addConstraint(Sketcher.Constraint("Coincident", 0, 2, 1, 1))
sketch8.addConstraint(Sketcher.Constraint("Coincident", 1, 2, 2, 1))
sketch8.addConstraint(Sketcher.Constraint("Coincident", 2, 2, 3, 1))
sketch8.addConstraint(Sketcher.Constraint("Coincident", 3, 2, 4, 1))
sketch8.addConstraint(Sketcher.Constraint("Coincident", 4, 2, 5, 1))
sketch8.addConstraint(Sketcher.Constraint("Coincident", 5, 2, 0, 1))
sketch8.addConstraint(Sketcher.Constraint("Coincident", 6, 2, 7, 1))
sketch8.addConstraint(Sketcher.Constraint("Coincident", 7, 2, 8, 1))
sketch8.addConstraint(Sketcher.Constraint("Coincident", 8, 2, 9, 1))
sketch8.addConstraint(Sketcher.Constraint("Coincident", 9, 2, 10, 1))
sketch8.addConstraint(Sketcher.Constraint("Coincident", 10, 2, 11, 1))
sketch8.addConstraint(Sketcher.Constraint("Coincident", 11, 2, 6, 1))
sketch8.addConstraint(Sketcher.Constraint("Symmetric", 5, 2, 6, 2, -2))
sketch8.addConstraint(Sketcher.Constraint("Symmetric", 4, 2, 7, 2, -2))
sketch8.addConstraint(Sketcher.Constraint("Symmetric", 3, 2, 8, 2, -2))
sketch8.addConstraint(Sketcher.Constraint("Symmetric", 2, 2, 9, 2, -2))
sketch8.addConstraint(Sketcher.Constraint("Symmetric", 1, 2, 10, 2, -2))
sketch8.addConstraint(Sketcher.Constraint("Symmetric", 0, 2, 11, 2, -2))
sketch8.addConstraint(Sketcher.Constraint("Perpendicular", 1, 2))
sketch8.addConstraint(Sketcher.Constraint("Perpendicular", 2, 3))
sketch8.addConstraint(Sketcher.Constraint("Parallel", 0, 4))
sketch8.addConstraint(Sketcher.Constraint("Perpendicular", 4, 5))
sketch8.addConstraint(Sketcher.Constraint("Equal", 2, 5))
sketch8.addConstraint(Sketcher.Constraint("Distance", 2, 1.0))
sketch8.addConstraint(Sketcher.Constraint("DistanceY", 5, 2, 1, 2, 15.0))
sketch8.addConstraint(Sketcher.Constraint("Distance", 1, 4.3))
sketch8.addConstraint(Sketcher.Constraint("DistanceY", 1, 2, -1, 1, 0.2))
sketch8.addConstraint(Sketcher.Constraint("DistanceX", 1, 2, 0, 2, 0.7))
sketch8.addConstraint(Sketcher.Constraint("DistanceX", 5, 2, 0, 2, 3.2))
sketch8.addConstraint(Sketcher.Constraint("DistanceX", 6, 2, 5, 2, 27.5))
sketch8.setExpression("Constraints[23]", "Params.sketch8_length")
sketch8.setExpression("Constraints[25]", "Params.sketch8_length2")
pad5 = body.newObject("PartDesign::Pad", "Pad004")
pad5.Profile = sketch8
pad5.Type = "TwoLengths"
pad5.setExpression("Length", "Params.pad5_length")
pad5.setExpression("Length2", "Params.pad5_length2")

doc.recompute()
